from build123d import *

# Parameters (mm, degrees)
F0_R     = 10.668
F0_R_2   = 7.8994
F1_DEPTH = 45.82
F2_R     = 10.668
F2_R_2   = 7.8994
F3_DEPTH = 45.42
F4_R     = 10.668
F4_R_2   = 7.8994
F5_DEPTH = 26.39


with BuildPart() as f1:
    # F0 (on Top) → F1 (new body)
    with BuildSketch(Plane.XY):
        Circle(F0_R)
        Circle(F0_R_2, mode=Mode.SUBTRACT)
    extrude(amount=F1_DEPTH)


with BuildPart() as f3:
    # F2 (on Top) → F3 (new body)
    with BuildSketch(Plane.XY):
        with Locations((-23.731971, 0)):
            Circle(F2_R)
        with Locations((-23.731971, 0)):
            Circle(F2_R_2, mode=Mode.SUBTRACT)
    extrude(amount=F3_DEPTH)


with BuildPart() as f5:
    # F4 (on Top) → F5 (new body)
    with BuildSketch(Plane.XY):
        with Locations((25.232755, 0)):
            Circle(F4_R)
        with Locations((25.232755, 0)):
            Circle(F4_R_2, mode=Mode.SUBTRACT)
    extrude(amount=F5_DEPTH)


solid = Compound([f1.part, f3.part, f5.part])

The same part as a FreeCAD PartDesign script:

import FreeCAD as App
import Part
import Sketcher

V = App.Vector
Q = App.Units.Quantity

doc = App.newDocument("Part")
body = doc.addObject("PartDesign::Body", "Body")

sketch1 = body.newObject("Sketcher::SketchObject", "Sketch")
sketch1.AttachmentSupport = (doc.getObject("XY_Plane"), [""])
sketch1.MapMode = "FlatFace"
sketch1.addGeometry([
    Part.Circle(V(0, 0, 0), V(0, 0, 1), 11),
    Part.Circle(V(0, 0, 0), V(0, 0, 1), 8),
], False)
sketch1.addConstraint([
    Sketcher.Constraint("Coincident", 0, 3, -1, 1),
    Sketcher.Constraint("Coincident", 1, 3, -1, 1),
    Sketcher.Constraint("Diameter", 0, Q("0.84 in")),
    Sketcher.Constraint("Diameter", 1, Q("0.622 in")),
])
pad1 = body.newObject("PartDesign::Pad", "Pad")
pad1.Profile = sketch1
pad1.Length = 45.82
body2 = doc.addObject("PartDesign::Body", "Body001")

sketch2 = body2.newObject("Sketcher::SketchObject", "Sketch001")
sketch2.AttachmentSupport = (doc.getObject("XY_Plane001"), [""])
sketch2.MapMode = "FlatFace"
sketch2.addGeometry([
    Part.Circle(V(-24, 0, 0), V(0, 0, 1), 11),
    Part.Circle(V(-24, 0, 0), V(0, 0, 1), 8),
], False)
sketch2.addConstraint([
    Sketcher.Constraint("Coincident", 1, 3, 0, 3),
    Sketcher.Constraint("PointOnObject", 0, 3, -1),
    Sketcher.Constraint("Diameter", 0, Q("0.84 in")),
    Sketcher.Constraint("Diameter", 1, Q("0.622 in")),
    Sketcher.Constraint("DistanceX", 0, 3, -1, 1, Q("23.731971 mm")),
])
pad2 = body2.newObject("PartDesign::Pad", "Pad001")
pad2.Profile = sketch2
pad2.Length = 45.42
body3 = doc.addObject("PartDesign::Body", "Body002")

sketch3 = body3.newObject("Sketcher::SketchObject", "Sketch002")
sketch3.AttachmentSupport = (doc.getObject("XY_Plane002"), [""])
sketch3.MapMode = "FlatFace"
sketch3.addGeometry([
    Part.Circle(V(25, 0, 0), V(0, 0, 1), 11),
    Part.Circle(V(25, 0, 0), V(0, 0, 1), 8),
], False)
sketch3.addConstraint([
    Sketcher.Constraint("Coincident", 1, 3, 0, 3),
    Sketcher.Constraint("PointOnObject", 0, 3, -1),
    Sketcher.Constraint("Diameter", 0, Q("0.84 in")),
    Sketcher.Constraint("Diameter", 1, Q("0.622 in")),
    Sketcher.Constraint("DistanceX", -1, 1, 0, 3, Q("25.232755 mm")),
])
pad3 = body3.newObject("PartDesign::Pad", "Pad002")
pad3.Profile = sketch3
pad3.Length = 26.39

doc.recompute()
